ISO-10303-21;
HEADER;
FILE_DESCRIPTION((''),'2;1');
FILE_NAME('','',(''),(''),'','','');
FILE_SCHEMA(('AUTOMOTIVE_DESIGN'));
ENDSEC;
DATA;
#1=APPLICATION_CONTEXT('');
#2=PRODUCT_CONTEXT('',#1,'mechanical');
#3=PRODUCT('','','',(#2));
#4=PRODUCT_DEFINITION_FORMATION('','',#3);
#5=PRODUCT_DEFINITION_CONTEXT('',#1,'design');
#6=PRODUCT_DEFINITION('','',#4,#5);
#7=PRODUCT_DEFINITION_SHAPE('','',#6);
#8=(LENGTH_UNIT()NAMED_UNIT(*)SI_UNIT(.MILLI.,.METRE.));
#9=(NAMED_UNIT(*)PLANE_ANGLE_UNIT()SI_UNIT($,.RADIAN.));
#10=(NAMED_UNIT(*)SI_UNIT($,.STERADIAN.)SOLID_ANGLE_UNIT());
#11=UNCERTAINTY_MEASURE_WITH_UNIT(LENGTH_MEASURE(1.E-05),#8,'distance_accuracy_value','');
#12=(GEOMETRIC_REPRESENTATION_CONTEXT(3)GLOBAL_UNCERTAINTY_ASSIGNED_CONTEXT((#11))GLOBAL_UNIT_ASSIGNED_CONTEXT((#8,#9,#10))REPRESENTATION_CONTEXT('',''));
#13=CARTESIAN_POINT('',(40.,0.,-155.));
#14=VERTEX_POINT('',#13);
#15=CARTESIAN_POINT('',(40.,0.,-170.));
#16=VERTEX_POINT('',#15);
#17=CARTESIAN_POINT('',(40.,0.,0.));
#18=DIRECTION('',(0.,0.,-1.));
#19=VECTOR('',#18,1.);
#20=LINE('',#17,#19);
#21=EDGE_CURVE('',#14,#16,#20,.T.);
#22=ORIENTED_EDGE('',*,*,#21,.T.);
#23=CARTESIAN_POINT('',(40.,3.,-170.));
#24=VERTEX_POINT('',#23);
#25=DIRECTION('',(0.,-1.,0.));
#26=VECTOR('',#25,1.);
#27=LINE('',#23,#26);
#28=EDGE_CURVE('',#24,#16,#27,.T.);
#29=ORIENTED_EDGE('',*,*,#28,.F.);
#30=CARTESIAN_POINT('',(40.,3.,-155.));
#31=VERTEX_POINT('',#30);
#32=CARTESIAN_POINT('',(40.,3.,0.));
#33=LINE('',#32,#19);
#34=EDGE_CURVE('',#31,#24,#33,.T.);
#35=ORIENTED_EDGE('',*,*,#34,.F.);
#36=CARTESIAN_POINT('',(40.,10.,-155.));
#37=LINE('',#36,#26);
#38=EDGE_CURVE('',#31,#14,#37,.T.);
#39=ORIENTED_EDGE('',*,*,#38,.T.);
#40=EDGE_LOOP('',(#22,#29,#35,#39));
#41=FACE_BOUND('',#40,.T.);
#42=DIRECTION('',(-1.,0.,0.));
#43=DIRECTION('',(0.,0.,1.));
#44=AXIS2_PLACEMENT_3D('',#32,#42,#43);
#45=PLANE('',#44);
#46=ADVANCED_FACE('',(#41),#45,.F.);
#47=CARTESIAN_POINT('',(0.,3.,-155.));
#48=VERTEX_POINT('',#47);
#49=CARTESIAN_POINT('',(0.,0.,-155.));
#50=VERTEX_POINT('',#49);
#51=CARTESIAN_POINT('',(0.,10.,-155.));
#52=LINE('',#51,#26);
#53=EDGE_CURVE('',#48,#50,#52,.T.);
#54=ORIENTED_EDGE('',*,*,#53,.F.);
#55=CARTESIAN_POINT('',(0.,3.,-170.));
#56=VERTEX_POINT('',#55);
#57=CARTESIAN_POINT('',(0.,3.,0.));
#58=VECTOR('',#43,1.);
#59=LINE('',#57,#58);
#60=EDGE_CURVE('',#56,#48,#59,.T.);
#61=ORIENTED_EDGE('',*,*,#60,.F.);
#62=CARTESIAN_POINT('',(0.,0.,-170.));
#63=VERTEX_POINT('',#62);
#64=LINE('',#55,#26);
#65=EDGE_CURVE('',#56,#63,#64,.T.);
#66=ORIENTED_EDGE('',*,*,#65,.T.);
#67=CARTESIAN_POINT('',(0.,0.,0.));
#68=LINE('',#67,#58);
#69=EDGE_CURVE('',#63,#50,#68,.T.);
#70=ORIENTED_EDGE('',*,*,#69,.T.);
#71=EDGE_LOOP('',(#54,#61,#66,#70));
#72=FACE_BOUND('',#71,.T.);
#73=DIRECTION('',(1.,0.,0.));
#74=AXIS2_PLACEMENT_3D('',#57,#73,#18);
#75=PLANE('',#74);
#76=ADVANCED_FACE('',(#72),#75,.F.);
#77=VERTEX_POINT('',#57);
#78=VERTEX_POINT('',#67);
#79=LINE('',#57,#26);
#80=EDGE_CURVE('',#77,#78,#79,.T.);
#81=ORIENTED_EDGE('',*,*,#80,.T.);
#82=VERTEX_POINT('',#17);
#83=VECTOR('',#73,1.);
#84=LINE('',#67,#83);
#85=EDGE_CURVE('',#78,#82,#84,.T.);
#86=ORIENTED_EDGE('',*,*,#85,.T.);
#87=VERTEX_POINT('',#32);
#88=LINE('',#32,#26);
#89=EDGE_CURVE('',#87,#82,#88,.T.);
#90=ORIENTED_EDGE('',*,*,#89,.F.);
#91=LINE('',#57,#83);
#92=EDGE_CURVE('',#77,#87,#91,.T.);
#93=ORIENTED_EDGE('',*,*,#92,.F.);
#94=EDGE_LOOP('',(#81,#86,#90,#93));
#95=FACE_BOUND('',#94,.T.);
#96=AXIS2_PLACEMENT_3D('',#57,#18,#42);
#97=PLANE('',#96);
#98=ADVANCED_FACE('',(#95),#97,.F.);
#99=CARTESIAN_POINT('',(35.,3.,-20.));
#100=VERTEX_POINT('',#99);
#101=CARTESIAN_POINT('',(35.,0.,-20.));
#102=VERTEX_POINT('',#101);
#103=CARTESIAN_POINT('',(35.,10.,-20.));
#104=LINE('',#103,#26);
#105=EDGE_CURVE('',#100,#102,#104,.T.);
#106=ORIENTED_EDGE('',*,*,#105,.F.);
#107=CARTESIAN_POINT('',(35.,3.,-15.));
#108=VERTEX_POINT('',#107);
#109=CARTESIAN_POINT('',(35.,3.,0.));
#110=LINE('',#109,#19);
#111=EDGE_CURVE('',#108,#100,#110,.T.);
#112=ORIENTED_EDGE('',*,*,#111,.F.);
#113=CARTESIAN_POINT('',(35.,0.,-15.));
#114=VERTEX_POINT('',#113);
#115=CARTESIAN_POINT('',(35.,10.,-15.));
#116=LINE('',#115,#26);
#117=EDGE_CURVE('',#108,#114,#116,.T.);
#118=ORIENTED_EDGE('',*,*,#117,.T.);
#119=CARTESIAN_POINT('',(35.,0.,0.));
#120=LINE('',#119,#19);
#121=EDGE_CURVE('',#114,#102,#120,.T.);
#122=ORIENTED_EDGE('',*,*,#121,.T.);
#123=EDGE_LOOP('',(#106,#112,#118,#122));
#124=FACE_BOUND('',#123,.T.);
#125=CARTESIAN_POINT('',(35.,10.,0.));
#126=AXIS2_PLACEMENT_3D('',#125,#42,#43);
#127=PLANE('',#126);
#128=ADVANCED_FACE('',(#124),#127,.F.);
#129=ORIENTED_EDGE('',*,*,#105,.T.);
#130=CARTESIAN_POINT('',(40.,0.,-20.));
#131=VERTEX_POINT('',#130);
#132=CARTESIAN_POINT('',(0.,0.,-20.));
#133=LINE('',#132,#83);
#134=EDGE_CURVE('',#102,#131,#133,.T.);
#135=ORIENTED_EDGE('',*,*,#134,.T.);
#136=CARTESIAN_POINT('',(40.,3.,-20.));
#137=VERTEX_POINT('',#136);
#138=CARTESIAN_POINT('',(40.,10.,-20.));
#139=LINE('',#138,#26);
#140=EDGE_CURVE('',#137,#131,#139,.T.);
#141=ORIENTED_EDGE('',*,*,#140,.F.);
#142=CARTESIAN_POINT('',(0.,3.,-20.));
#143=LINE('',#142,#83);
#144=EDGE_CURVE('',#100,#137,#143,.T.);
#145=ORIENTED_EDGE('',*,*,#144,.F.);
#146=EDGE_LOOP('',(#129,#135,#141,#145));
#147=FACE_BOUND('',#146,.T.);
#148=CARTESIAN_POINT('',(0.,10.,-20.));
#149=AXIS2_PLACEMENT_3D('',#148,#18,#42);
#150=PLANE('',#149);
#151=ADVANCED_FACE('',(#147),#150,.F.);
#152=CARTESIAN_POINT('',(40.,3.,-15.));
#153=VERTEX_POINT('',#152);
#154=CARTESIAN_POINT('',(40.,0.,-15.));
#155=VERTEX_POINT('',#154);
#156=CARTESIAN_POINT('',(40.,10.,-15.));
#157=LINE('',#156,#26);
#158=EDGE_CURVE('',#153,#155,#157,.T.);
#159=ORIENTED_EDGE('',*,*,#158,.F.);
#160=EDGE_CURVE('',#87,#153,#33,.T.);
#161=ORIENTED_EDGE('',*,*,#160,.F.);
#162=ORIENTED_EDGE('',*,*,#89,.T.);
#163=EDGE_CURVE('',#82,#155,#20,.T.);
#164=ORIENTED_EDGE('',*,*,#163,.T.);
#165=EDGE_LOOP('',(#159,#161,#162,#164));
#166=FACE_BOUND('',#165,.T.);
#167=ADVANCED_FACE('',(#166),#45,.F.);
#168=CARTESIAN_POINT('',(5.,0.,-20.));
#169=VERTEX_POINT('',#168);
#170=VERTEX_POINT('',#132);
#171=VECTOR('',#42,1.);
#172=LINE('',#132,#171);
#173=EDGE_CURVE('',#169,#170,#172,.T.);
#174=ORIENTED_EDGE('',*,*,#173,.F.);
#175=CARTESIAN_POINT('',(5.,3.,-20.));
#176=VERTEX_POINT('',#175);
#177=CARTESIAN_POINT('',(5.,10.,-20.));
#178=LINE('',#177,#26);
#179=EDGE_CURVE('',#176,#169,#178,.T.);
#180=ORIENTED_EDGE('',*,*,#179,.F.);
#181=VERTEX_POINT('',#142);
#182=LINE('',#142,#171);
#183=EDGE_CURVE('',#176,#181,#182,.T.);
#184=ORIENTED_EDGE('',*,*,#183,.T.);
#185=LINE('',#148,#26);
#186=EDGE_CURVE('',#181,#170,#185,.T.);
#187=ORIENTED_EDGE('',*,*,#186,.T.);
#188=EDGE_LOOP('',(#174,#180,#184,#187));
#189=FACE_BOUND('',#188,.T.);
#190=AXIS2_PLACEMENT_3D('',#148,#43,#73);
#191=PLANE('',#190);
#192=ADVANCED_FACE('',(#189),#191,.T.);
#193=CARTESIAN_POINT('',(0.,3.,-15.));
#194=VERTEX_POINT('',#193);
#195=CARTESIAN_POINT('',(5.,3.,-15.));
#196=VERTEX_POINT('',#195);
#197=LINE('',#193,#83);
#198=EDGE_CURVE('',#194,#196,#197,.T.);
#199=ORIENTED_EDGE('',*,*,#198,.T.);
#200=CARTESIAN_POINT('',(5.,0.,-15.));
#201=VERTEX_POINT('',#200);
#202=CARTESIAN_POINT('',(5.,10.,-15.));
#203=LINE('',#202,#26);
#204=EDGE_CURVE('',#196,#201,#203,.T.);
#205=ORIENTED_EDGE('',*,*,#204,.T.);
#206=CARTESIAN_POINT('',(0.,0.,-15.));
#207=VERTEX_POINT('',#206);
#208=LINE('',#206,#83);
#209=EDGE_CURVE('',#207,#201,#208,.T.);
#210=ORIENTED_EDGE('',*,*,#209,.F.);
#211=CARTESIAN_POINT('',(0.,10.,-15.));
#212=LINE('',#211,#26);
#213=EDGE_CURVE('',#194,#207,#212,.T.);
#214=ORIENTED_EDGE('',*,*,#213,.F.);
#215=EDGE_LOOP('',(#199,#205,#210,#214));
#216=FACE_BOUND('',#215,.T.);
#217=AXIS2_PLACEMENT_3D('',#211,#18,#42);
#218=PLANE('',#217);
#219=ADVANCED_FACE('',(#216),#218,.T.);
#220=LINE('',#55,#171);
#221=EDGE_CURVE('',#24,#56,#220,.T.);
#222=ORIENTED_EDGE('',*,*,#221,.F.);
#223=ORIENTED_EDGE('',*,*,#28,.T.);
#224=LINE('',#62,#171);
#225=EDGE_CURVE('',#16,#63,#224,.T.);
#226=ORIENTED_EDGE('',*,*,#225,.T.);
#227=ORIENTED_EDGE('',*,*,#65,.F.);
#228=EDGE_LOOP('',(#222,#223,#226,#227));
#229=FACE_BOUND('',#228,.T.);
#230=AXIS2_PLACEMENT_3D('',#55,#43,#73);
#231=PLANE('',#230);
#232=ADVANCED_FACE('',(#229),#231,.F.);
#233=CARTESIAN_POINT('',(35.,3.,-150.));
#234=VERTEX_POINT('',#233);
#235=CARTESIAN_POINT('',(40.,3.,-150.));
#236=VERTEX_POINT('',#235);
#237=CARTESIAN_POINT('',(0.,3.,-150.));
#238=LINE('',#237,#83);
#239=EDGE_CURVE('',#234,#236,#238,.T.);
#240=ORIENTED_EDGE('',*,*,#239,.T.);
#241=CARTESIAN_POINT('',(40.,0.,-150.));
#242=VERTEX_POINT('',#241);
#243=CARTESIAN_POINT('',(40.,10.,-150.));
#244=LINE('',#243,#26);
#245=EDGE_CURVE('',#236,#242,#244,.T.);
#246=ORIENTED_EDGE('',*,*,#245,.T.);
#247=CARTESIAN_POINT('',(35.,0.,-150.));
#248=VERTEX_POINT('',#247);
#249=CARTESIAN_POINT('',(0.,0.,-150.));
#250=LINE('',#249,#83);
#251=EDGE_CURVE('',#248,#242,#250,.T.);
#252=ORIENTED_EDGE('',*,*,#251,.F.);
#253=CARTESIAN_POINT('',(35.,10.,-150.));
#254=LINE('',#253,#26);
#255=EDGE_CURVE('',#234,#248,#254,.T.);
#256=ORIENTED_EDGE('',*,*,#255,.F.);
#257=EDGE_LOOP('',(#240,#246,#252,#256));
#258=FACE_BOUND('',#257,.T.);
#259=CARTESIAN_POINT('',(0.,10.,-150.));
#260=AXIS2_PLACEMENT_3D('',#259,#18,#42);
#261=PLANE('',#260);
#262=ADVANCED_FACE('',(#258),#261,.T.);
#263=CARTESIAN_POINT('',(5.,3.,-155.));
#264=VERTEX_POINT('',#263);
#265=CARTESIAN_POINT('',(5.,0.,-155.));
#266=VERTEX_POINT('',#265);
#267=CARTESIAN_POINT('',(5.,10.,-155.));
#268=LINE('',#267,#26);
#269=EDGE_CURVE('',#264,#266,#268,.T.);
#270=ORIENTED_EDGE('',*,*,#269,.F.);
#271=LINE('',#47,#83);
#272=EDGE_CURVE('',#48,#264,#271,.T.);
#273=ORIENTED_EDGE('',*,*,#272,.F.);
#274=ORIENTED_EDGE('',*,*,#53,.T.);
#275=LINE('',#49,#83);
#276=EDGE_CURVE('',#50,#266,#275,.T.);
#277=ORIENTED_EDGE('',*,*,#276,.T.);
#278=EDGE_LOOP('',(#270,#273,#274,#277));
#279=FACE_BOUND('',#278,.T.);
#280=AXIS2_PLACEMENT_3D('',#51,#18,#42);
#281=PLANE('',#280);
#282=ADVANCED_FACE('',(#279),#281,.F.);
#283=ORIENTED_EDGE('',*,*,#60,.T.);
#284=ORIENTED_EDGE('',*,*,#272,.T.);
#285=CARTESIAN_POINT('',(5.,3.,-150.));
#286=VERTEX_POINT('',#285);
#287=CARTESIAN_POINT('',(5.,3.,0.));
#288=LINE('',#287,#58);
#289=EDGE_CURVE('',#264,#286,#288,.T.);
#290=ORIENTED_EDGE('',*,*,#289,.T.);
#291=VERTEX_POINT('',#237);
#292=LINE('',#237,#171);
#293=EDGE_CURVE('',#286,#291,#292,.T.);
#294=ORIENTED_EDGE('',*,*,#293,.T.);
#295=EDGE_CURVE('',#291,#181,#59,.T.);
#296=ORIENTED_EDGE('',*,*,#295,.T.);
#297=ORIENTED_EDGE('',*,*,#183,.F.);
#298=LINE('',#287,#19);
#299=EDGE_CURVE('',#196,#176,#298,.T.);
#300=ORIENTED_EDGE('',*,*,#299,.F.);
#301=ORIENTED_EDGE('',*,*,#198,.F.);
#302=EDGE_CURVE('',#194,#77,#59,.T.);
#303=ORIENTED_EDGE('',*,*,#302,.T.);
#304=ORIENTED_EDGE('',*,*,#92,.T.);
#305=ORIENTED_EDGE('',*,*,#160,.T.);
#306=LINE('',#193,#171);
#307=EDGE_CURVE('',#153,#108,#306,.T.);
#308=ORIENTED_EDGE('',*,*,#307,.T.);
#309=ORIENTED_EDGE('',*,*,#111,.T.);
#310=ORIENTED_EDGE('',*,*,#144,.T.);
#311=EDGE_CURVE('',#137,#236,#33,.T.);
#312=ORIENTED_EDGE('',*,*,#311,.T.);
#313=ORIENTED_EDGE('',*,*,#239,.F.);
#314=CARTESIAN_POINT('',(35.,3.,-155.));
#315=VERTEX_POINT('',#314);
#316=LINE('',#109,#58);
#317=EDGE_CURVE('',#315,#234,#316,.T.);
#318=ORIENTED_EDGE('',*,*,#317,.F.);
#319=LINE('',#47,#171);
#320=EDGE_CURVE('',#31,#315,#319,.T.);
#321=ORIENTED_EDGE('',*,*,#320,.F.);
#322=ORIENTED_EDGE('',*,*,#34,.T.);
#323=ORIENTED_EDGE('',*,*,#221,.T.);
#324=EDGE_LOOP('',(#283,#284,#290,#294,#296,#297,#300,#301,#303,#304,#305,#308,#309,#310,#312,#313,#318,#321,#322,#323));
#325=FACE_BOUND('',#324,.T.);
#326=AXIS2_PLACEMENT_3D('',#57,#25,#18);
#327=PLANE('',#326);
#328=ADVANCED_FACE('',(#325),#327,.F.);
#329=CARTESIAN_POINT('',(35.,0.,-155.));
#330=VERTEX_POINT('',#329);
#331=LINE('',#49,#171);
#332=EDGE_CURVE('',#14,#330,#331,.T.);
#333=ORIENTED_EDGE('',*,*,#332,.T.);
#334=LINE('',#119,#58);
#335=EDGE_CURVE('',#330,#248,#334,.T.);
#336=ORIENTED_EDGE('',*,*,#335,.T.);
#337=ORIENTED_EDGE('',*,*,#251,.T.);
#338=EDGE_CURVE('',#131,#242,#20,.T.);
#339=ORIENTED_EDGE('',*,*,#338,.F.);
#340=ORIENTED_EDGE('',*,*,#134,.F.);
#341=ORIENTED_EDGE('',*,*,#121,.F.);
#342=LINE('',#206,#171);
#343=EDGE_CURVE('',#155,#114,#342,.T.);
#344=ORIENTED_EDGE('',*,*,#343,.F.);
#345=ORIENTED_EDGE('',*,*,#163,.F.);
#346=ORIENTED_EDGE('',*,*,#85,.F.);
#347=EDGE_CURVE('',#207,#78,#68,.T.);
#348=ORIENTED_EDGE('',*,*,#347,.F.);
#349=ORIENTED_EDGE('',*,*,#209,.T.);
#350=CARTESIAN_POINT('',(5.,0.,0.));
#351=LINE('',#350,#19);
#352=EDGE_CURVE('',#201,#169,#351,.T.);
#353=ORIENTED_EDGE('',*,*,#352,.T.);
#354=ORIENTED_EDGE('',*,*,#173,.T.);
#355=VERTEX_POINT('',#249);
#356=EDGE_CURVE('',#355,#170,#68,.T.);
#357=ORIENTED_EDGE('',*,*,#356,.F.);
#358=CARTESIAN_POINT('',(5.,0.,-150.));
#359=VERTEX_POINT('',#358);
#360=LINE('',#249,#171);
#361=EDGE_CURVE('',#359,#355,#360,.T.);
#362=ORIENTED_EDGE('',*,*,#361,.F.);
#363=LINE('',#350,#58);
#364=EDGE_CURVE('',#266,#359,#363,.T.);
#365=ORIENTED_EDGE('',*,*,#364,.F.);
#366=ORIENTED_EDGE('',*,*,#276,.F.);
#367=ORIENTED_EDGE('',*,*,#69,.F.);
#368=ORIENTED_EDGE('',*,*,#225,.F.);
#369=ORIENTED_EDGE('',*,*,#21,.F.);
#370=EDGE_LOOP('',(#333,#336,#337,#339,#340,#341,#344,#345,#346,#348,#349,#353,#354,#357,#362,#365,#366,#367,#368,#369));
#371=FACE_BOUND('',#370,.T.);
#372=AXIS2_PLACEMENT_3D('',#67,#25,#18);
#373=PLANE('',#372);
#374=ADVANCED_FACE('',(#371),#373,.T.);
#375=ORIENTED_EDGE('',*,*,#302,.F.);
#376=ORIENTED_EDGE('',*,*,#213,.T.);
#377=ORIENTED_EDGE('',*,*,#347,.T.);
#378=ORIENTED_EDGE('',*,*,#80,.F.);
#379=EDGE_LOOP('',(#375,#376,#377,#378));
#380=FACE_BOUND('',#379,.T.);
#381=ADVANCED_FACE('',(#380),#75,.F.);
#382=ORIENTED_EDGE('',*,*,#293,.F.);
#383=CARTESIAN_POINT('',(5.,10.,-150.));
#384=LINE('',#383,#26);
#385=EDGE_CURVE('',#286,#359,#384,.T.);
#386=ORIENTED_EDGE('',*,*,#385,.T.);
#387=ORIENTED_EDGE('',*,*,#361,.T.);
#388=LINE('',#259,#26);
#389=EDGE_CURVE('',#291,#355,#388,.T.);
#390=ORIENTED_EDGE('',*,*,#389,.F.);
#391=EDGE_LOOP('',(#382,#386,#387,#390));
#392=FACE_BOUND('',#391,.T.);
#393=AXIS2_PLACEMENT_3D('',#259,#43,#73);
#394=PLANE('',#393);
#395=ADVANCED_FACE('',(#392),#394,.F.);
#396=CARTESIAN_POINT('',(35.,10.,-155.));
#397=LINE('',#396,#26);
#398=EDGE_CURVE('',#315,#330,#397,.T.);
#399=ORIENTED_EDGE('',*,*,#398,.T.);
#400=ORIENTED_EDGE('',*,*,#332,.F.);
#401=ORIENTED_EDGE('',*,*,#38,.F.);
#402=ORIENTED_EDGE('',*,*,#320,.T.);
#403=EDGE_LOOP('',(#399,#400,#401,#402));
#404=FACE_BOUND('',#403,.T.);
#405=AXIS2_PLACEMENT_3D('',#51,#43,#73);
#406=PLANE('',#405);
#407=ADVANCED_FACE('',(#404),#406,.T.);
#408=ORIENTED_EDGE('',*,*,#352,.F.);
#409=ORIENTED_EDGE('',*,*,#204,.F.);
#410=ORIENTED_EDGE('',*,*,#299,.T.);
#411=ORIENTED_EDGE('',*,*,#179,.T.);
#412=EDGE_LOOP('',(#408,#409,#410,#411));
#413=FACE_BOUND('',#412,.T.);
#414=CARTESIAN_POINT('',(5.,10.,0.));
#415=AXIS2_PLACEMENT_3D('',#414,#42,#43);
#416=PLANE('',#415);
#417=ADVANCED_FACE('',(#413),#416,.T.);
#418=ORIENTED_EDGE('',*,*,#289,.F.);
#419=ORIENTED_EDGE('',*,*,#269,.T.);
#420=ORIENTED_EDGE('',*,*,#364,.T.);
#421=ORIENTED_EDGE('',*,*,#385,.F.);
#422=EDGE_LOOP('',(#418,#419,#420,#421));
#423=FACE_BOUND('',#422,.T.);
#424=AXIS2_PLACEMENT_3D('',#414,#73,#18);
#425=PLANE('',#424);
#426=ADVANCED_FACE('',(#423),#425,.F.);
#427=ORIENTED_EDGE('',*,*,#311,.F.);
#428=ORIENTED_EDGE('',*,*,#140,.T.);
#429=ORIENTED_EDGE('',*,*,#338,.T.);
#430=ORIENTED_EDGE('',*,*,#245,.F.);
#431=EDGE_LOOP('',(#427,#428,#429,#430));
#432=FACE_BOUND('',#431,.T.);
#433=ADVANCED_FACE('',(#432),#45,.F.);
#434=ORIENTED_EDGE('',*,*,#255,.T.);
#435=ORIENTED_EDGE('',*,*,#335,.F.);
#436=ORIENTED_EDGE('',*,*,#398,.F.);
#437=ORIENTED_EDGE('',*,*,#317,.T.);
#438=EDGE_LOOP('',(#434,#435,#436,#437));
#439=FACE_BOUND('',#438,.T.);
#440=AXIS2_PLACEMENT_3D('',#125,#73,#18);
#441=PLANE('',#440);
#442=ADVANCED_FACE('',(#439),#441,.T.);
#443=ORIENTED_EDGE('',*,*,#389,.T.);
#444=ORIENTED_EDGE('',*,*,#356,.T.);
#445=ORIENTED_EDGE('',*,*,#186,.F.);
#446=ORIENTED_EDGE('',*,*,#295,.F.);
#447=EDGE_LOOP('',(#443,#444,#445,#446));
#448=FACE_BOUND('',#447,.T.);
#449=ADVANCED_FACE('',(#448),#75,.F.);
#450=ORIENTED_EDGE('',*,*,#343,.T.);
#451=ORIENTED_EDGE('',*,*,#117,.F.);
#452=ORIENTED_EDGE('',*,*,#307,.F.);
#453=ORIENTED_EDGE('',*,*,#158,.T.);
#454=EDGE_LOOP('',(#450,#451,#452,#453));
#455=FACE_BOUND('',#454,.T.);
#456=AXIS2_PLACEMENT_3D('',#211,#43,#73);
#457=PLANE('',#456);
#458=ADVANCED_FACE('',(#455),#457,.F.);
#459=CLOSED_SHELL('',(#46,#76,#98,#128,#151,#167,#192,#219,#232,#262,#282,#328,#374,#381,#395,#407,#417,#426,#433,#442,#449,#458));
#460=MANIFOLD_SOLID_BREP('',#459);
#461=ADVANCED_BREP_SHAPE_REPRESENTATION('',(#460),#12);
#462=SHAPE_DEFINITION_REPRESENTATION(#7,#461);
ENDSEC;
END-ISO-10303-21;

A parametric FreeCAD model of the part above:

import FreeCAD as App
import Part
import Sketcher

V = App.Vector

doc = App.newDocument("Part")
body = doc.addObject("PartDesign::Body", "Body")

# Sketch on XZ plane
sketch1 = body.newObject("Sketcher::SketchObject", "Sketch")
sketch1.AttachmentSupport = (doc.getObject("XZ_Plane"), [""])
sketch1.MapMode = "FlatFace"
sketch1.addGeometry([
    Part.LineSegment(V(0, -170, 0), V(0, 0, 0)),
    Part.LineSegment(V(0, 0, 0), V(40, 0, 0)),
    Part.LineSegment(V(40, 0, 0), V(40, -170, 0)),
    Part.LineSegment(V(40, -170, 0), V(0, -170, 0)),
], False)
sketch1.addConstraint([
    Sketcher.Constraint("Coincident", 0, 2, 1, 1),
    Sketcher.Constraint("Coincident", 1, 2, 2, 1),
    Sketcher.Constraint("Coincident", 2, 2, 3, 1),
    Sketcher.Constraint("Coincident", 3, 2, 0, 1),
    Sketcher.Constraint("Vertical", 0),
    Sketcher.Constraint("Horizontal", 1),
    Sketcher.Constraint("Vertical", 2),
    Sketcher.Constraint("Horizontal", 3),
    Sketcher.Constraint("Coincident", 0, 2, -1, 1),
    Sketcher.Constraint("DistanceX", 1, 1, 1, 2, 40.0),
    Sketcher.Constraint("DistanceY", 0, 1, 0, 2, 170.0),
])
pad1 = body.newObject("PartDesign::Pad", "Pad")
pad1.Profile = sketch1
pad1.Length = 3
pad1.Reversed = True

# Sketch on XZ plane
sketch2 = body.newObject("Sketcher::SketchObject", "Sketch001")
sketch2.AttachmentSupport = (doc.getObject("XZ_Plane"), [""])
sketch2.MapMode = "FlatFace"
sketch2.addGeometry([
    Part.LineSegment(V(0, -155, 0), V(0, -150, 0)),  # 0
    Part.LineSegment(V(0, -150, 0), V(5, -150, 0)),  # 1
    Part.LineSegment(V(5, -150, 0), V(5, -155, 0)),  # 2
    Part.LineSegment(V(5, -155, 0), V(0, -155, 0)),  # 3
    Part.LineSegment(V(35, -20, 0), V(35, -15, 0)),  # 4
    Part.LineSegment(V(35, -15, 0), V(40, -15, 0)),  # 5
    Part.LineSegment(V(40, -15, 0), V(40, -20, 0)),  # 6
    Part.LineSegment(V(40, -20, 0), V(35, -20, 0)),  # 7
    Part.LineSegment(V(0, -20, 0), V(0, -15, 0)),  # 8
    Part.LineSegment(V(0, -15, 0), V(5, -15, 0)),  # 9
    Part.LineSegment(V(5, -15, 0), V(5, -20, 0)),  # 10
    Part.LineSegment(V(5, -20, 0), V(0, -20, 0)),  # 11
    Part.LineSegment(V(35, -155, 0), V(35, -150, 0)),  # 12
    Part.LineSegment(V(35, -150, 0), V(40, -150, 0)),  # 13
    Part.LineSegment(V(40, -150, 0), V(40, -155, 0)),  # 14
    Part.LineSegment(V(40, -155, 0), V(35, -155, 0)),  # 15
], False)
sketch2.addConstraint([
    Sketcher.Constraint("Coincident", 0, 2, 1, 1),
    Sketcher.Constraint("Coincident", 1, 2, 2, 1),
    Sketcher.Constraint("Coincident", 2, 2, 3, 1),
    Sketcher.Constraint("Coincident", 3, 2, 0, 1),
    Sketcher.Constraint("Coincident", 4, 2, 5, 1),
    Sketcher.Constraint("Coincident", 5, 2, 6, 1),
    Sketcher.Constraint("Coincident", 6, 2, 7, 1),
    Sketcher.Constraint("Coincident", 7, 2, 4, 1),
    Sketcher.Constraint("Coincident", 8, 2, 9, 1),
    Sketcher.Constraint("Coincident", 9, 2, 10, 1),
    Sketcher.Constraint("Coincident", 10, 2, 11, 1),
    Sketcher.Constraint("Coincident", 11, 2, 8, 1),
    Sketcher.Constraint("Coincident", 12, 2, 13, 1),
    Sketcher.Constraint("Coincident", 13, 2, 14, 1),
    Sketcher.Constraint("Coincident", 14, 2, 15, 1),
    Sketcher.Constraint("Coincident", 15, 2, 12, 1),
    Sketcher.Constraint("Vertical", 0),
    Sketcher.Constraint("Horizontal", 1),
    Sketcher.Constraint("Vertical", 2),
    Sketcher.Constraint("Horizontal", 3),
    Sketcher.Constraint("Vertical", 4),
    Sketcher.Constraint("Horizontal", 5),
    Sketcher.Constraint("Vertical", 6),
    Sketcher.Constraint("Horizontal", 7),
    Sketcher.Constraint("Vertical", 8),
    Sketcher.Constraint("Horizontal", 9),
    Sketcher.Constraint("Vertical", 10),
    Sketcher.Constraint("Horizontal", 11),
    Sketcher.Constraint("Vertical", 12),
    Sketcher.Constraint("Horizontal", 13),
    Sketcher.Constraint("Vertical", 14),
    Sketcher.Constraint("Horizontal", 15),
    Sketcher.Constraint("PointOnObject", 0, 2, -2),
    Sketcher.Constraint("PointOnObject", 8, 2, -2),
    Sketcher.Constraint("Horizontal", 5, 2, 8, 2),
    Sketcher.Constraint("Horizontal", 7, 2, 10, 2),
    Sketcher.Constraint("Horizontal", 1, 2, 12, 2),
    Sketcher.Constraint("Horizontal", 3, 2, 14, 2),
    Sketcher.Constraint("Vertical", 2, 2, 9, 2),
    Sketcher.Constraint("Vertical", 7, 2, 12, 2),
    Sketcher.Constraint("Vertical", 6, 2, 13, 2),
    Sketcher.Constraint("Equal", 3, 5),
    Sketcher.Constraint("Equal", 15, 0),
    Sketcher.Constraint("Equal", 2, 4),
    Sketcher.Constraint("DistanceX", 1, 1, 1, 2, 5.0),
    Sketcher.Constraint("DistanceY", 0, 2, -1, 1, 150.0),
    Sketcher.Constraint("DistanceX", -1, 1, 4, 2, 35.0),
    Sketcher.Constraint("DistanceY", 4, 2, -1, 1, 15.0),
])
pocket1 = body.newObject("PartDesign::Pocket", "Pocket")
pocket1.Profile = sketch2
pocket1.Length = 10

doc.recompute()
